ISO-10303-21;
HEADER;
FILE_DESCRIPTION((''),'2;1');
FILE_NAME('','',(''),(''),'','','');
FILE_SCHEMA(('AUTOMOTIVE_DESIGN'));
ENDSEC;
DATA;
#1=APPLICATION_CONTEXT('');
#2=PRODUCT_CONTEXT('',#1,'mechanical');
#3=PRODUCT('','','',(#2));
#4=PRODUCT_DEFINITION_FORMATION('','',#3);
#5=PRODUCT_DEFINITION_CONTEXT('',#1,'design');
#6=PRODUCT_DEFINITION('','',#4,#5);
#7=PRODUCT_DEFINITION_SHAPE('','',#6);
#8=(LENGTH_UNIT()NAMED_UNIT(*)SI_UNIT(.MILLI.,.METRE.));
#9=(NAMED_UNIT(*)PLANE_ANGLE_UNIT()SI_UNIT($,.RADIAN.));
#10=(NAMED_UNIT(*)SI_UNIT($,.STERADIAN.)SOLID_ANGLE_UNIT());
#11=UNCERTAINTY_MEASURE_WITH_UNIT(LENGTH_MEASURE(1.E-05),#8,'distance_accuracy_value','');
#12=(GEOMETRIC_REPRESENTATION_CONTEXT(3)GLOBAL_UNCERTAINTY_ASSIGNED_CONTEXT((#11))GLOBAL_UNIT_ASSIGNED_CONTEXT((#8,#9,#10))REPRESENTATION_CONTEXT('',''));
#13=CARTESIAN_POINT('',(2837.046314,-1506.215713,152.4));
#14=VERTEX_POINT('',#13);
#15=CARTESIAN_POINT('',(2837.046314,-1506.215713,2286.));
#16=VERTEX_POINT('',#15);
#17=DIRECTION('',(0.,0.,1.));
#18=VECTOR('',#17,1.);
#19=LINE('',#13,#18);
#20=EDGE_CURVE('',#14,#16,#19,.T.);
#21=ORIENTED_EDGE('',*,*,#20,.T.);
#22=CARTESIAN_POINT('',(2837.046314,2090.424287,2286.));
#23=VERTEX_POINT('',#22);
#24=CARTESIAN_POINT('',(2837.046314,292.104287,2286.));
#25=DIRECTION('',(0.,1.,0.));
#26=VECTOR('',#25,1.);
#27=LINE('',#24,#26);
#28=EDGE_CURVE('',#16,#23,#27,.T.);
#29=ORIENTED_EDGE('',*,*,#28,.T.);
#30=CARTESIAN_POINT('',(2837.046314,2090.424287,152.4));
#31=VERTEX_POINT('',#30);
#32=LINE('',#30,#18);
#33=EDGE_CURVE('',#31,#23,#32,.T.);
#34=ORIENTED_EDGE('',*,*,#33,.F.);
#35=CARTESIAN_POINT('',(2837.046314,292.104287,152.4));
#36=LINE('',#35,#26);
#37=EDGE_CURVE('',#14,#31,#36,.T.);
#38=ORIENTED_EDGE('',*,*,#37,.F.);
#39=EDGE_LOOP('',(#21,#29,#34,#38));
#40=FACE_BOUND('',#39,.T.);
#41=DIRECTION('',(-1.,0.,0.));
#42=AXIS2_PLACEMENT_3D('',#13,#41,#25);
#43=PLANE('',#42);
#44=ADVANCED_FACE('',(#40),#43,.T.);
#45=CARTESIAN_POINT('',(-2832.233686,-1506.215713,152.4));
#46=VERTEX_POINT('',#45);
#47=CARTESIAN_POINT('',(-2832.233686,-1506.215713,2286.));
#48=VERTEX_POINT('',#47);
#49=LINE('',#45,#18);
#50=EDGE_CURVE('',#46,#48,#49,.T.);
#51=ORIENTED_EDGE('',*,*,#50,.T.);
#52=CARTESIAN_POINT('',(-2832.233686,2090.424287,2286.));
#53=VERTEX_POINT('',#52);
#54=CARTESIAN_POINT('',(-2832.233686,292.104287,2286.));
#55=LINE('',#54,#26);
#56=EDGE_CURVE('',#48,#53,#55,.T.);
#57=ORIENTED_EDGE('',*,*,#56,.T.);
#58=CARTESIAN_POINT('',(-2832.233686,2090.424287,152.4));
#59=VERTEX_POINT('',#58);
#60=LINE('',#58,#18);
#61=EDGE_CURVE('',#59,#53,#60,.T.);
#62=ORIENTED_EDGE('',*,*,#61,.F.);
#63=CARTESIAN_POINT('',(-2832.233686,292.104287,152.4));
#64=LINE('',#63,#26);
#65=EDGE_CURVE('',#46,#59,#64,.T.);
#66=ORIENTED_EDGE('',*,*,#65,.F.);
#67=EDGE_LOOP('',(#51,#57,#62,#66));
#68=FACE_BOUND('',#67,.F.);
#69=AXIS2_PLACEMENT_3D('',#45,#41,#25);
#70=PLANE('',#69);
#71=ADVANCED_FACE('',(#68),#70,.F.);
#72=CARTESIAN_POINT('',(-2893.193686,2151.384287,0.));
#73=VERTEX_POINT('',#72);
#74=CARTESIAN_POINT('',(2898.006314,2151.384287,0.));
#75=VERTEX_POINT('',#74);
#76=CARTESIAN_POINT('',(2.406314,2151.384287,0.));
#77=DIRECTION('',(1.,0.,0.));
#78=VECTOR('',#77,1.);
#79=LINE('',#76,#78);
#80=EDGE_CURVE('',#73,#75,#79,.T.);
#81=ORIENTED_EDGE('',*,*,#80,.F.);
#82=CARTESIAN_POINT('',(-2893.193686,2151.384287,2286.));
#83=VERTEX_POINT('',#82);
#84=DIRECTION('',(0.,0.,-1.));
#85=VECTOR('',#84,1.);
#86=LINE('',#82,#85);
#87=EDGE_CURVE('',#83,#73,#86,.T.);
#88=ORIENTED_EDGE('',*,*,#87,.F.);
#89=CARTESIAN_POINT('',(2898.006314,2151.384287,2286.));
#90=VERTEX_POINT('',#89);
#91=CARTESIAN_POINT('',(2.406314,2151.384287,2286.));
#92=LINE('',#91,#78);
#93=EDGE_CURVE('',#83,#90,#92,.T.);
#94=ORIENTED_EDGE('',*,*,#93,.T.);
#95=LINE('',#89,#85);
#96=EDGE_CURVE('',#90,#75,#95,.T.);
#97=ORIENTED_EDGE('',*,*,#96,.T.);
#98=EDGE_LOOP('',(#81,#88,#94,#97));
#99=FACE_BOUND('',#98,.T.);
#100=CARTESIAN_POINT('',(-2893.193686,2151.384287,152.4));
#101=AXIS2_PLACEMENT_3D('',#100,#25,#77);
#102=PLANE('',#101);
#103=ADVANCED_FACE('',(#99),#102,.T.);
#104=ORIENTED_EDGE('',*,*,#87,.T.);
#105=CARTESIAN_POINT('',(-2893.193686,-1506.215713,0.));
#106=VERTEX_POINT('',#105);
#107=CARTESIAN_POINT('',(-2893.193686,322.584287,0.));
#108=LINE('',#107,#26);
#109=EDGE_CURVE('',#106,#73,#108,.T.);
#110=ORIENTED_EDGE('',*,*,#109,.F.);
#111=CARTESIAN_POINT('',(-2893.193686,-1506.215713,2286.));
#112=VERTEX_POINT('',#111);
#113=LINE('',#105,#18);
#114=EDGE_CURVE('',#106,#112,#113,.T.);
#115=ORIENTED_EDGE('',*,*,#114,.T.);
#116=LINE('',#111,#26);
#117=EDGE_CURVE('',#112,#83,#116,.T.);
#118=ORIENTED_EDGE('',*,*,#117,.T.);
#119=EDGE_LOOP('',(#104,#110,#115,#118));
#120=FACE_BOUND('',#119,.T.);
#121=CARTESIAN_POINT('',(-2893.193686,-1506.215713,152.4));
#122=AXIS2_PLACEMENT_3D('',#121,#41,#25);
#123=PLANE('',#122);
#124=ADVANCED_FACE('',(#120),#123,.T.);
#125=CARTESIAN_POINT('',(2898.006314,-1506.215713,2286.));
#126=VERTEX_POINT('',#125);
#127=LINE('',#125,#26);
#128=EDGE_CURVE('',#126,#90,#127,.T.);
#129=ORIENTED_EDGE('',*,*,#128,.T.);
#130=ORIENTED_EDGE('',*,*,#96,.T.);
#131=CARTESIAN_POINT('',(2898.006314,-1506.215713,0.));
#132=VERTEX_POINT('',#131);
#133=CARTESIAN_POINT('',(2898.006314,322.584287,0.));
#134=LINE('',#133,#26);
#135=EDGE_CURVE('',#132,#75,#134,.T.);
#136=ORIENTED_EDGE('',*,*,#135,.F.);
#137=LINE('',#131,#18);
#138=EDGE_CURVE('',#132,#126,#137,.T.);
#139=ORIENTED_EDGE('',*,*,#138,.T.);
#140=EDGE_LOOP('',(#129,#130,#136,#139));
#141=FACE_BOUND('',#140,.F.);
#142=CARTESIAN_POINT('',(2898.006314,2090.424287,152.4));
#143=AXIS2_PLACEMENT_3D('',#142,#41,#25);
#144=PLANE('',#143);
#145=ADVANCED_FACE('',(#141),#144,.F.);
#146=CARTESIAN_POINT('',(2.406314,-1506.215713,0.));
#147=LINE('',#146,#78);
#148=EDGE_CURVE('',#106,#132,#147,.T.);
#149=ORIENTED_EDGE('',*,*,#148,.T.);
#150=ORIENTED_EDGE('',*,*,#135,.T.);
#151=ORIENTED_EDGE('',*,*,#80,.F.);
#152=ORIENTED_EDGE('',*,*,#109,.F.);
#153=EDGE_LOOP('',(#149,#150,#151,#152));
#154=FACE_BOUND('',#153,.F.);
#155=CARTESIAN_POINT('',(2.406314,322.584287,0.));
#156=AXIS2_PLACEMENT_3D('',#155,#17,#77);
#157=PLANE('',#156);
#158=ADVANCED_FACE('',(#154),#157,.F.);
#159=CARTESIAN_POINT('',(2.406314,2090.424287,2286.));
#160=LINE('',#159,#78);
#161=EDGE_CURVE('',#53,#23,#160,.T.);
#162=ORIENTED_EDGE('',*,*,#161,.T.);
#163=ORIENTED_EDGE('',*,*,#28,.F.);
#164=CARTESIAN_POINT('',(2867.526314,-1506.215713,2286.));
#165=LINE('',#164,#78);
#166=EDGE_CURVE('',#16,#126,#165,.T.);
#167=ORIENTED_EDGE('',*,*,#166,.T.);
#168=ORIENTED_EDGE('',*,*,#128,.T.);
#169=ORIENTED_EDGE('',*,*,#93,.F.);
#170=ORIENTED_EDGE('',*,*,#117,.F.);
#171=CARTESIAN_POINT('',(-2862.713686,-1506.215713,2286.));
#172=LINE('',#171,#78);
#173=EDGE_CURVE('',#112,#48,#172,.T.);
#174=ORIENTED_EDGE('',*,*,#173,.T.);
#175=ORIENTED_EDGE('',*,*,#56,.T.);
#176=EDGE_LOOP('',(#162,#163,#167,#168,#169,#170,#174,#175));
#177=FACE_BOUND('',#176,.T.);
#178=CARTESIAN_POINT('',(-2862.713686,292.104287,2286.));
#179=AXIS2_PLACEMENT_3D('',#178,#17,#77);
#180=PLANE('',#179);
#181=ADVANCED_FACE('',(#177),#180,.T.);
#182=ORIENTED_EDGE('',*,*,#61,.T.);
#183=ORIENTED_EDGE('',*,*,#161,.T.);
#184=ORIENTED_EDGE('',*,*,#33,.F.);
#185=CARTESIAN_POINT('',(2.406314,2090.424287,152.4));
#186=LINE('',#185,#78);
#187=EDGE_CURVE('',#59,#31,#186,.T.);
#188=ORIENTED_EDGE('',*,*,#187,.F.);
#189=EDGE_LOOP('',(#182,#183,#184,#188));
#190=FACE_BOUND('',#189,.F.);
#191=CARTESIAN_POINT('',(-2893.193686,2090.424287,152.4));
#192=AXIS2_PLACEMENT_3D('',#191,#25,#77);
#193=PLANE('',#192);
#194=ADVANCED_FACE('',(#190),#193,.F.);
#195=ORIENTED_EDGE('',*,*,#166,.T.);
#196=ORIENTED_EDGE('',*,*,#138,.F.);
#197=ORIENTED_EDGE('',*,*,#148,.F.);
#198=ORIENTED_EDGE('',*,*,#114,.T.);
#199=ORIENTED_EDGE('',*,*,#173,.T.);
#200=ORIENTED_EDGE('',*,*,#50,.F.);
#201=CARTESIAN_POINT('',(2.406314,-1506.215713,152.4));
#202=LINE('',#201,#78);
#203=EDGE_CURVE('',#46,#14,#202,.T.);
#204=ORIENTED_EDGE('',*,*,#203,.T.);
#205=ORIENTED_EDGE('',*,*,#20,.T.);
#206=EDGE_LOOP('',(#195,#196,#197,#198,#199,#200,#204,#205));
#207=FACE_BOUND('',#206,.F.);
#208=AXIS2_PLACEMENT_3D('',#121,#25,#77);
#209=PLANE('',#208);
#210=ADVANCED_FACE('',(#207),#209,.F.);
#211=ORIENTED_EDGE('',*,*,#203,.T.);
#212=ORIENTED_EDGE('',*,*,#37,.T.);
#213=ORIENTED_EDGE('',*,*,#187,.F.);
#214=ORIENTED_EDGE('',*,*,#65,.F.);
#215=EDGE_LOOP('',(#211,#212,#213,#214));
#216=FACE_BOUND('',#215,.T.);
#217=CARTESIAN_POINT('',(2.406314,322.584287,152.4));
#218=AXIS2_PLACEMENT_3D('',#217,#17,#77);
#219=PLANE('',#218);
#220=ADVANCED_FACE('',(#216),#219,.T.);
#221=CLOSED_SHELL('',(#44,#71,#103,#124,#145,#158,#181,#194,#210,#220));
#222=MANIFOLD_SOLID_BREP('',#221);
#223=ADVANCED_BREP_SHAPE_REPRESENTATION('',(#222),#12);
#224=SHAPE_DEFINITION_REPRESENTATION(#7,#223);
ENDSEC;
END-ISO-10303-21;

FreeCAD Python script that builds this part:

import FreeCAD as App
import Part
import Sketcher

V = App.Vector
Q = App.Units.Quantity

doc = App.newDocument("Part")
body = doc.addObject("PartDesign::Body", "Body")

sketch1 = doc.addObject("Sketcher::SketchObject", "Sketch")
body.addObject(sketch1)
sketch1.AttachmentSupport = (doc.XY_Plane, [""])
sketch1.MapMode = "FlatFace"
sketch1.addGeometry([
    Part.LineSegment(V(-2893, 2151, 0), V(-2893, -1506, 0)),
    Part.LineSegment(V(-2893, -1506, 0), V(2898, -1506, 0)),
    Part.LineSegment(V(2898, -1506, 0), V(2898, 2151, 0)),
    Part.LineSegment(V(2898, 2151, 0), V(-2893, 2151, 0)),
], False)
sketch1.addConstraint([
    Sketcher.Constraint("Coincident", 0, 2, 1, 1),
    Sketcher.Constraint("Coincident", 1, 2, 2, 1),
    Sketcher.Constraint("Coincident", 2, 2, 3, 1),
    Sketcher.Constraint("Coincident", 3, 2, 0, 1),
    Sketcher.Constraint("Vertical", 0),
    Sketcher.Constraint("Horizontal", 1),
    Sketcher.Constraint("Vertical", 2),
    Sketcher.Constraint("Horizontal", 3),
    Sketcher.Constraint("DistanceX", 1, 1, 1, 2, Q("228 in")),
    Sketcher.Constraint("DistanceY", 0, 2, 0, 1, Q("144 in")),
    Sketcher.Constraint("DistanceX", 0, 2, -1, 1, 2893.193686),
    Sketcher.Constraint("DistanceY", 0, 2, -1, 1, 1506.215713),
])
pad1 = doc.addObject("PartDesign::Pad", "Pad")
body.addObject(pad1)
pad1.Profile = sketch1
pad1.Length = Q("6 in")

sketch2 = doc.addObject("Sketcher::SketchObject", "Sketch001")
body.addObject(sketch2)
sketch2.AttachmentSupport = (doc.XY_Plane, [""])
sketch2.MapMode = "FlatFace"
sketch2.AttachmentOffset = App.Placement(V(0, 0, 6 * 25.4), App.Rotation())
sketch2.addGeometry([
    Part.LineSegment(V(-2893, 2151, 0), V(-2893, 2090, 0)),
    Part.LineSegment(V(-2893, 2090, 0), V(2898, 2090, 0)),
    Part.LineSegment(V(2898, 2090, 0), V(2898, 2151, 0)),
    Part.LineSegment(V(2898, 2151, 0), V(-2893, 2151, 0)),
], False)
sketch2.addConstraint([
    Sketcher.Constraint("Coincident", 0, 2, 1, 1),
    Sketcher.Constraint("Coincident", 1, 2, 2, 1),
    Sketcher.Constraint("Coincident", 2, 2, 3, 1),
    Sketcher.Constraint("Coincident", 3, 2, 0, 1),
    Sketcher.Constraint("Vertical", 0),
    Sketcher.Constraint("Horizontal", 1),
    Sketcher.Constraint("Vertical", 2),
    Sketcher.Constraint("Horizontal", 3),
    Sketcher.Constraint("DistanceX", 1, 1, 1, 2, Q("228 in")),
    Sketcher.Constraint("DistanceY", 0, 2, 0, 1, Q("2.4 in")),
    Sketcher.Constraint("DistanceX", 0, 2, -1, 1, 2893.193686),
    Sketcher.Constraint("DistanceY", -1, 1, 0, 2, 2090.424287),
])
pad2 = doc.addObject("PartDesign::Pad", "Pad001")
body.addObject(pad2)
pad2.Profile = sketch2
pad2.Length = Q("84 in")

sketch3 = doc.addObject("Sketcher::SketchObject", "Sketch002")
body.addObject(sketch3)
sketch3.AttachmentSupport = (doc.XY_Plane, [""])
sketch3.MapMode = "FlatFace"
sketch3.AttachmentOffset = App.Placement(V(0, 0, 6 * 25.4), App.Rotation())
sketch3.addGeometry([
    Part.LineSegment(V(-2893, 2090, 0), V(-2893, -1506, 0)),
    Part.LineSegment(V(-2893, -1506, 0), V(-2832, -1506, 0)),
    Part.LineSegment(V(-2832, -1506, 0), V(-2832, 2090, 0)),
    Part.LineSegment(V(-2832, 2090, 0), V(-2893, 2090, 0)),
    Part.LineSegment(V(2837, 2090, 0), V(2837, -1506, 0)),
    Part.LineSegment(V(2837, -1506, 0), V(2898, -1506, 0)),
    Part.LineSegment(V(2898, -1506, 0), V(2898, 2090, 0)),
    Part.LineSegment(V(2898, 2090, 0), V(2837, 2090, 0)),
], False)
sketch3.addConstraint([
    Sketcher.Constraint("Coincident", 0, 2, 1, 1),
    Sketcher.Constraint("Coincident", 1, 2, 2, 1),
    Sketcher.Constraint("Coincident", 2, 2, 3, 1),
    Sketcher.Constraint("Coincident", 3, 2, 0, 1),
    Sketcher.Constraint("Coincident", 4, 2, 5, 1),
    Sketcher.Constraint("Coincident", 5, 2, 6, 1),
    Sketcher.Constraint("Coincident", 6, 2, 7, 1),
    Sketcher.Constraint("Coincident", 7, 2, 4, 1),
    Sketcher.Constraint("Vertical", 0),
    Sketcher.Constraint("Horizontal", 1),
    Sketcher.Constraint("Vertical", 2),
    Sketcher.Constraint("Horizontal", 3),
    Sketcher.Constraint("Vertical", 4),
    Sketcher.Constraint("Horizontal", 5),
    Sketcher.Constraint("Vertical", 6),
    Sketcher.Constraint("Horizontal", 7),
    Sketcher.Constraint("Horizontal", 1, 2, 4, 2),
    Sketcher.Constraint("Horizontal", 3, 2, 6, 2),
    Sketcher.Constraint("Equal", 3, 5),
    Sketcher.Constraint("DistanceX", 1, 1, 1, 2, Q("2.4 in")),
    Sketcher.Constraint("DistanceY", 0, 2, 0, 1, Q("141.6 in")),
    Sketcher.Constraint("DistanceX", 0, 2, 5, 2, Q("228 in")),
    Sketcher.Constraint("DistanceX", 0, 2, -1, 1, 2893.193686),
    Sketcher.Constraint("DistanceY", 0, 2, -1, 1, 1506.215713),
])
pad3 = doc.addObject("PartDesign::Pad", "Pad002")
body.addObject(pad3)
pad3.Profile = sketch3
pad3.Length = Q("84 in")

doc.recompute()
